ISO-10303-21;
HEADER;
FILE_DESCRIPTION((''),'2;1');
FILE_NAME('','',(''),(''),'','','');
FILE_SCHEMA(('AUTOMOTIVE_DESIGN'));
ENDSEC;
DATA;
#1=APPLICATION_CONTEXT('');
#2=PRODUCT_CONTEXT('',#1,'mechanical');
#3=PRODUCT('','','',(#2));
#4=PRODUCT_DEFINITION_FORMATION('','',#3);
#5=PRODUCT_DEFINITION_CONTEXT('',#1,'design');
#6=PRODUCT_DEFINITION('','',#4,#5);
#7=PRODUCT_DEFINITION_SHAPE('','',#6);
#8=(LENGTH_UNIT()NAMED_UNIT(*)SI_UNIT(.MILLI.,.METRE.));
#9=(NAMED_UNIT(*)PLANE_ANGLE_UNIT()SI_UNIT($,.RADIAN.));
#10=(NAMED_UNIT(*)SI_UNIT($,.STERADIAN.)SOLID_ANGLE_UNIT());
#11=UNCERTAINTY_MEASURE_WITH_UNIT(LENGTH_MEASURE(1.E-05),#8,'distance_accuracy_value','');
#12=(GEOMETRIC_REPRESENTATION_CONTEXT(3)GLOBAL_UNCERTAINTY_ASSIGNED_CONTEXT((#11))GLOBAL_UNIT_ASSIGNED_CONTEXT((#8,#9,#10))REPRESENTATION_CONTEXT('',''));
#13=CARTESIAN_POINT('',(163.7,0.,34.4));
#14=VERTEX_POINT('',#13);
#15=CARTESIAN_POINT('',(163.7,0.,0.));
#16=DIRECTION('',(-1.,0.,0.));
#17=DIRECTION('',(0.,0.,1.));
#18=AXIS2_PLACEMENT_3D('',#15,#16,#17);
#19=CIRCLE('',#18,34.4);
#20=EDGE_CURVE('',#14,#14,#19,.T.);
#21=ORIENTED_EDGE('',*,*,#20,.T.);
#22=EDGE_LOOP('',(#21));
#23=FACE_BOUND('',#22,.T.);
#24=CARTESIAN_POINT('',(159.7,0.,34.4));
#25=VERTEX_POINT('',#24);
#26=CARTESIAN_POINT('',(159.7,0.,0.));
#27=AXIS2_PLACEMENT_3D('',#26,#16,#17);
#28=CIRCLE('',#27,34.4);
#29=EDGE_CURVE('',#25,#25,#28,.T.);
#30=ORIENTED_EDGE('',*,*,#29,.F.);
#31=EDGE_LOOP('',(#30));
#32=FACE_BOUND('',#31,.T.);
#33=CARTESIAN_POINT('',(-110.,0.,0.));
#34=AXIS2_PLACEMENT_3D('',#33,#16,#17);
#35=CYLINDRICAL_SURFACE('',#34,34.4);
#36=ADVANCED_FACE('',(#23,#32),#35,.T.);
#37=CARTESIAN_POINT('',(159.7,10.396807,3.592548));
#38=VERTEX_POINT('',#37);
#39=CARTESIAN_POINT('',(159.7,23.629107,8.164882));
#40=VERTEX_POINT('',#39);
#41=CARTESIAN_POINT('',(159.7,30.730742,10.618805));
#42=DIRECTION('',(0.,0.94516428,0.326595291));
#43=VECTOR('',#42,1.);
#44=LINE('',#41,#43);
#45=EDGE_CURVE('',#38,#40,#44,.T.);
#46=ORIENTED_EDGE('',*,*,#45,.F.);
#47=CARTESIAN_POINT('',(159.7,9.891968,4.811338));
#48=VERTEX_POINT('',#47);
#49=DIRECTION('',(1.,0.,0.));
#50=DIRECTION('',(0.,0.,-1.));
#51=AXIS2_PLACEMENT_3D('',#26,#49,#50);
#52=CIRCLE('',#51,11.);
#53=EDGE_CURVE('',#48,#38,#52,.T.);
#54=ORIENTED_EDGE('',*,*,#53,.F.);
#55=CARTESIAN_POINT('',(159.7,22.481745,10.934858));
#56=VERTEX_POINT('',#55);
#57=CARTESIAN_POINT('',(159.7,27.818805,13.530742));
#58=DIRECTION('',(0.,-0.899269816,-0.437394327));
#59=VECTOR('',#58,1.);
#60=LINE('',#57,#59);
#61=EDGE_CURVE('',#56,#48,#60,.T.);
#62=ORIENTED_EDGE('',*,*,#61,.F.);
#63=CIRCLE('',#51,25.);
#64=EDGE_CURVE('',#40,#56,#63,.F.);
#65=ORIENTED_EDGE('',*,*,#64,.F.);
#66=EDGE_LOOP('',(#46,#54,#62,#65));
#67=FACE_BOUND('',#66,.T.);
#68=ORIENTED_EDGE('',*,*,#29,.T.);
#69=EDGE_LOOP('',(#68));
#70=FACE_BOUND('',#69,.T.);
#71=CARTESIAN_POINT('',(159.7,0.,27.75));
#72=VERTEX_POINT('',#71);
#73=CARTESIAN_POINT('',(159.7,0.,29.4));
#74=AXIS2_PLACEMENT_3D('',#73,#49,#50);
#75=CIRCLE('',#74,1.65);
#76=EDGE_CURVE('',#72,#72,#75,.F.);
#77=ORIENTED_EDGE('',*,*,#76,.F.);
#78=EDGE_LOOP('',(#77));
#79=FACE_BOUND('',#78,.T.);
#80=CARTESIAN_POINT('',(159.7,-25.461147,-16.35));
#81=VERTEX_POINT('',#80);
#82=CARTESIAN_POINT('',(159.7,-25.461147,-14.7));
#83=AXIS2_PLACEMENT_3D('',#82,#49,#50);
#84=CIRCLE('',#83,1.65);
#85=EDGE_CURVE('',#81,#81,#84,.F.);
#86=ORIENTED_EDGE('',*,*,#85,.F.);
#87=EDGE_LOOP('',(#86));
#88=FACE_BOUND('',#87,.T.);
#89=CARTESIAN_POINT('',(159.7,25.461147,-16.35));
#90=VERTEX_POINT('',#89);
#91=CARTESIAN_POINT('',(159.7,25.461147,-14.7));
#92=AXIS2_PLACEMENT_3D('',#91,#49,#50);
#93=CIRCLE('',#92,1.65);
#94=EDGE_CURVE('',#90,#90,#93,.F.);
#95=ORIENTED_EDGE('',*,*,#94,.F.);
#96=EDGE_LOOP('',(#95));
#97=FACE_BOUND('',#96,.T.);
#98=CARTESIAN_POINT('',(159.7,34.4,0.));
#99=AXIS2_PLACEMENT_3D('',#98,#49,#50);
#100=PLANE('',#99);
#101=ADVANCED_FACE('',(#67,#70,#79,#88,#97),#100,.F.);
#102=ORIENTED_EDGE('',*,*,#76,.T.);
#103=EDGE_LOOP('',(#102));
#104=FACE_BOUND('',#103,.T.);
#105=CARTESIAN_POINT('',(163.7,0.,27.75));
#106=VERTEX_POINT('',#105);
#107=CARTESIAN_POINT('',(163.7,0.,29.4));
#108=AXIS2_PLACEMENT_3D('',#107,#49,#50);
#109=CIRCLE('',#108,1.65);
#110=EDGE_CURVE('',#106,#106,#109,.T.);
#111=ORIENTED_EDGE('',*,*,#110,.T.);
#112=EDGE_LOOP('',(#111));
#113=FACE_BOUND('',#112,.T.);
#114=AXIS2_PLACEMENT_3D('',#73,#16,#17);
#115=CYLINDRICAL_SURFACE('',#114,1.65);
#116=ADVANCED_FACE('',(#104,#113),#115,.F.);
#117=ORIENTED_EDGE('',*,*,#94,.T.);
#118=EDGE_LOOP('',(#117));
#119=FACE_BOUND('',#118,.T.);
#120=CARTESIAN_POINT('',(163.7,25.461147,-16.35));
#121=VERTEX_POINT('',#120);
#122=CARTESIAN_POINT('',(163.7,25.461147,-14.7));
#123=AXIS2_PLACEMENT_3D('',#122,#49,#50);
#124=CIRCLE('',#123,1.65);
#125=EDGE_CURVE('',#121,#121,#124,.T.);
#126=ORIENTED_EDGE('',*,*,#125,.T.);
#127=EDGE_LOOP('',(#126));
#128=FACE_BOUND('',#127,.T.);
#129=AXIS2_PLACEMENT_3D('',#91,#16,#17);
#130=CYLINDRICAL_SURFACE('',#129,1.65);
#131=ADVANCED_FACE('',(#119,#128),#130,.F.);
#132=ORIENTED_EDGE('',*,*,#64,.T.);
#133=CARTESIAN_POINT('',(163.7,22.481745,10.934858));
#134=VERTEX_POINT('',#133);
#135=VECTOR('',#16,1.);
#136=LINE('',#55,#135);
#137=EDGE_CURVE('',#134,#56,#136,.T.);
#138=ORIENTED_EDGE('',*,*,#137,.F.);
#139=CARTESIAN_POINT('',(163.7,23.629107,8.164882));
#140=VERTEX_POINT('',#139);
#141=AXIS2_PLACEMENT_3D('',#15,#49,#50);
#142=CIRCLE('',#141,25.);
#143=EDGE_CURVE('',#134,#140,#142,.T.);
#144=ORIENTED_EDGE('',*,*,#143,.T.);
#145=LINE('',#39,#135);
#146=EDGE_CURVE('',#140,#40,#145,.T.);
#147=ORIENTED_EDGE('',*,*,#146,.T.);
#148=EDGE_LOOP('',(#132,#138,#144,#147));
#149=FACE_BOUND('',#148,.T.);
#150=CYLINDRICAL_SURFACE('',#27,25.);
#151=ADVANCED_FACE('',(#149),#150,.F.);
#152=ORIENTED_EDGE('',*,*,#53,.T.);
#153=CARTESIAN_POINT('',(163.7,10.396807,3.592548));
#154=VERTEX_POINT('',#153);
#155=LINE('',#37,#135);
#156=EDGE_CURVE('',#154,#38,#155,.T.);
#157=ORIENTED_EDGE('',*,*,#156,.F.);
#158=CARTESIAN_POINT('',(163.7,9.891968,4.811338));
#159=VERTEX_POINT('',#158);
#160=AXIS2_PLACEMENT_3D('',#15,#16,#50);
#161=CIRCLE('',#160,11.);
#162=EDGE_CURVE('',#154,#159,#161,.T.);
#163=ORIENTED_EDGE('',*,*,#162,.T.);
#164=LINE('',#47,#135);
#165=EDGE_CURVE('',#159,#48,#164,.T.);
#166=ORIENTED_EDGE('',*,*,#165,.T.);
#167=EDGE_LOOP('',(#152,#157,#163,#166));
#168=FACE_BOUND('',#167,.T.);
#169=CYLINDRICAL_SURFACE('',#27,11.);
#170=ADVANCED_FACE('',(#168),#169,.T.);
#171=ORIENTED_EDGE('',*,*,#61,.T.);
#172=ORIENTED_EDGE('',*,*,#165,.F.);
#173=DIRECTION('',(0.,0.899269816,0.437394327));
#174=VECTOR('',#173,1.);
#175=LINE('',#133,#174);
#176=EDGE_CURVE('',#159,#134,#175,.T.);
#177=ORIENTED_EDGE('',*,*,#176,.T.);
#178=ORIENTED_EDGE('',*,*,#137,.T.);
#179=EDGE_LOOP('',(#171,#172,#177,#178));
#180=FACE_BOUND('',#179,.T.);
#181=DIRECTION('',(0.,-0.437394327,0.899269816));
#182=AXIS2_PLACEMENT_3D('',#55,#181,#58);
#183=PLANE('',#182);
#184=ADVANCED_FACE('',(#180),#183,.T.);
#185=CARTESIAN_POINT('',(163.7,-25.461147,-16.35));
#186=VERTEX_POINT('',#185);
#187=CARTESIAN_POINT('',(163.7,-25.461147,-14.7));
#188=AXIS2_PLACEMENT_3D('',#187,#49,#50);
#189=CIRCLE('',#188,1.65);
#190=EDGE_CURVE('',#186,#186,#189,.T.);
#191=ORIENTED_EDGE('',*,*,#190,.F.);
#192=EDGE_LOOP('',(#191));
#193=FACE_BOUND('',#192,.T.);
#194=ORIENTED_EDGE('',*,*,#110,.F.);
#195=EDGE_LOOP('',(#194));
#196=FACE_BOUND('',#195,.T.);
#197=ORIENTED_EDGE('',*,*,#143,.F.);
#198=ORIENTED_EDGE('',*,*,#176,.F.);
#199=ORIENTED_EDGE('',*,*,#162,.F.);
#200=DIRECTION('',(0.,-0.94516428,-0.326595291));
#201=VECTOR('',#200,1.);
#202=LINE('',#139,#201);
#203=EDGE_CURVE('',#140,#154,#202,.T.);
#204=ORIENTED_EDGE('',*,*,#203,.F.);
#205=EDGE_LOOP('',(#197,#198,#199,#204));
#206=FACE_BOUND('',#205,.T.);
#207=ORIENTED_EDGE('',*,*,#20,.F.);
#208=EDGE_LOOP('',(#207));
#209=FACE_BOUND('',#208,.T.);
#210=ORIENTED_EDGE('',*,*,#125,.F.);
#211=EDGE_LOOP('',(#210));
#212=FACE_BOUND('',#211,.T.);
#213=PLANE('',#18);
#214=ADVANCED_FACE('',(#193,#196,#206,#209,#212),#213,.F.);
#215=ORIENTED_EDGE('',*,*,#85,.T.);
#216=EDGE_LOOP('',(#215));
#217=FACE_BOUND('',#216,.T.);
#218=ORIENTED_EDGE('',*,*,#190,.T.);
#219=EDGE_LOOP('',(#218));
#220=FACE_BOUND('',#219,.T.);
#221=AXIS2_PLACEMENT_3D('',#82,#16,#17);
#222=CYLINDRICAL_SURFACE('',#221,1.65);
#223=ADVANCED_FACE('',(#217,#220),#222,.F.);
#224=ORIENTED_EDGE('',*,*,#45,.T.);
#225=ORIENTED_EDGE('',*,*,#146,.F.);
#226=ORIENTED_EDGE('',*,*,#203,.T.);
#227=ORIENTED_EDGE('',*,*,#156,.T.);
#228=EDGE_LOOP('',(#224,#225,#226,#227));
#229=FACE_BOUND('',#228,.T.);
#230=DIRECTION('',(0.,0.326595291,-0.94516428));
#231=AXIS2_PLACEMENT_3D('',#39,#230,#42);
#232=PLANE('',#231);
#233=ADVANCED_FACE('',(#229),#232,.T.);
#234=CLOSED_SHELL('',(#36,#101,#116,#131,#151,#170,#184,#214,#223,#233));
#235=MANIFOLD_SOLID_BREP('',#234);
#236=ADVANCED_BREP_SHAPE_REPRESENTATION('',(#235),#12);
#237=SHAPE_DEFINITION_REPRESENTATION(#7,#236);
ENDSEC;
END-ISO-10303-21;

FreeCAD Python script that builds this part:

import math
import FreeCAD as App
import Part
import Sketcher

V = App.Vector

doc = App.newDocument("Part")
params = doc.addObject("Spreadsheet::Sheet", "Params")
for row, (alias, value) in enumerate([
    ("sketch1_width", "4 mm"),
    ("sketch1_height", "34.4 mm"),
    ("revolution_angle", "360 deg"),
    ("sketch2_diameter", "3.3 mm"),
    ("sketch3_radius", "25 mm"),
    ("sketch3_radius2", "11 mm"),
], start=1):
    params.set(f"A{row}", alias)
    params.set(f"B{row}", "=" + value)
    params.setAlias(f"B{row}", alias)

body = doc.addObject("PartDesign::Body", "Body")

# Sketch on XY plane
sketch1 = body.newObject("Sketcher::SketchObject", "Sketch")
sketch1.AttachmentSupport = (doc.getObject("XY_Plane"), [""])
sketch1.MapMode = "FlatFace"
sketch1.addGeometry([
    Part.LineSegment(V(159.7, 34.4, 0), V(159.7, 0, 0)),
    Part.LineSegment(V(159.7, 0, 0), V(163.7, 0, 0)),
    Part.LineSegment(V(163.7, 0, 0), V(163.7, 34.4, 0)),
    Part.LineSegment(V(163.7, 34.4, 0), V(159.7, 34.4, 0)),
], False)
sketch1.addConstraint([
    Sketcher.Constraint("Coincident", 0, 2, 1, 1),
    Sketcher.Constraint("Coincident", 1, 2, 2, 1),
    Sketcher.Constraint("Coincident", 2, 2, 3, 1),
    Sketcher.Constraint("Coincident", 3, 2, 0, 1),
    Sketcher.Constraint("Vertical", 0),
    Sketcher.Constraint("Horizontal", 1),
    Sketcher.Constraint("Vertical", 2),
    Sketcher.Constraint("Horizontal", 3),
    Sketcher.Constraint("PointOnObject", 0, 2, -1),
    Sketcher.Constraint("DistanceX", 1, 1, 1, 2, 4.0),
    Sketcher.Constraint("DistanceY", 0, 2, 0, 1, 34.4),
    Sketcher.Constraint("DistanceX", -1, 1, 0, 2, 159.7),
])
sketch1.setExpression("Constraints[9]", "Params.sketch1_width")
sketch1.setExpression("Constraints[10]", "Params.sketch1_height")
revolution = body.newObject("PartDesign::Revolution", "Revolution")
revolution.Profile = sketch1
revolution.ReferenceAxis = (sketch1, ["H_Axis"])
revolution.setExpression("Angle", "Params.revolution_angle")

# Sketch on YZ plane
sketch2 = body.newObject("Sketcher::SketchObject", "Sketch001")
sketch2.AttachmentSupport = (doc.getObject("YZ_Plane"), [""])
sketch2.MapMode = "FlatFace"
sketch2.addGeometry([
    Part.Circle(V(0, 29.4, 0), V(0, 0, 1), 1.6),
    Part.Circle(V(-25.5, -14.7, 0), V(0, 0, 1), 1.6),
    Part.Circle(V(25.5, -14.7, 0), V(0, 0, 1), 1.6),
], False)
sketch2.addConstraint([
    Sketcher.Constraint("Equal", 0, 1),
    Sketcher.Constraint("Equal", 1, 2),
    Sketcher.Constraint("Symmetric", 1, 3, 2, 3, -2),
    Sketcher.Constraint("PointOnObject", 0, 3, -2),
    Sketcher.Constraint("Diameter", 0, 3.3),
    Sketcher.Constraint("DistanceY", -1, 1, 0, 3, 29.4),
    Sketcher.Constraint("DistanceY", 1, 3, -1, 1, 14.7),
    Sketcher.Constraint("DistanceX", 1, 3, -1, 1, 25.461147),
])
sketch2.setExpression("Constraints[4]", "Params.sketch2_diameter")
pocket1 = body.newObject("PartDesign::Pocket", "Pocket")
pocket1.Profile = sketch2
pocket1.Type = "ThroughAll"
pocket1.Midplane = True

# Sketch on YZ plane
sketch3 = body.newObject("Sketcher::SketchObject", "Sketch002")
sketch3.AttachmentSupport = (doc.getObject("YZ_Plane"), [""])
sketch3.MapMode = "FlatFace"
sketch3.addGeometry([
    Part.LineSegment(V(9.9, 4.8, 0), V(22.5, 10.9, 0)),
    Part.ArcOfCircle(Part.Circle(V(0, 0, 0), V(0, 0, 1), 25), math.radians(26), math.radians(379)),
    Part.LineSegment(V(23.6, 8.2, 0), V(10.4, 3.6, 0)),
    Part.ArcOfCircle(Part.Circle(V(0, 0, 0), V(0, 0, 1), 11), math.radians(26), math.radians(379)),
], False)
sketch3.addConstraint([
    Sketcher.Constraint("Coincident", 0, 2, 1, 1),
    Sketcher.Constraint("Coincident", 1, 2, 2, 1),
    Sketcher.Constraint("Coincident", 2, 2, 3, 2),
    Sketcher.Constraint("Coincident", 3, 1, 0, 1),
    Sketcher.Constraint("Coincident", 1, 3, -1, 1),
    Sketcher.Constraint("Coincident", 3, 3, -1, 1),
    Sketcher.Constraint("Radius", 1, 25.0),
    Sketcher.Constraint("Radius", 3, 11.0),
    Sketcher.Constraint("DistanceX", 2, 2, 1, 2, 13.2323),
    Sketcher.Constraint("DistanceY", -1, 1, 0, 2, 10.934858),
    Sketcher.Constraint("DistanceY", -1, 1, 2, 2, 3.592548),
    Sketcher.Constraint("DistanceX", 3, 1, 2, 2, 0.504839),
])
sketch3.setExpression("Constraints[6]", "Params.sketch3_radius")
sketch3.setExpression("Constraints[7]", "Params.sketch3_radius2")
pocket2 = body.newObject("PartDesign::Pocket", "Pocket001")
pocket2.Profile = sketch3
pocket2.Type = "ThroughAll"
pocket2.Midplane = True

doc.recompute()
